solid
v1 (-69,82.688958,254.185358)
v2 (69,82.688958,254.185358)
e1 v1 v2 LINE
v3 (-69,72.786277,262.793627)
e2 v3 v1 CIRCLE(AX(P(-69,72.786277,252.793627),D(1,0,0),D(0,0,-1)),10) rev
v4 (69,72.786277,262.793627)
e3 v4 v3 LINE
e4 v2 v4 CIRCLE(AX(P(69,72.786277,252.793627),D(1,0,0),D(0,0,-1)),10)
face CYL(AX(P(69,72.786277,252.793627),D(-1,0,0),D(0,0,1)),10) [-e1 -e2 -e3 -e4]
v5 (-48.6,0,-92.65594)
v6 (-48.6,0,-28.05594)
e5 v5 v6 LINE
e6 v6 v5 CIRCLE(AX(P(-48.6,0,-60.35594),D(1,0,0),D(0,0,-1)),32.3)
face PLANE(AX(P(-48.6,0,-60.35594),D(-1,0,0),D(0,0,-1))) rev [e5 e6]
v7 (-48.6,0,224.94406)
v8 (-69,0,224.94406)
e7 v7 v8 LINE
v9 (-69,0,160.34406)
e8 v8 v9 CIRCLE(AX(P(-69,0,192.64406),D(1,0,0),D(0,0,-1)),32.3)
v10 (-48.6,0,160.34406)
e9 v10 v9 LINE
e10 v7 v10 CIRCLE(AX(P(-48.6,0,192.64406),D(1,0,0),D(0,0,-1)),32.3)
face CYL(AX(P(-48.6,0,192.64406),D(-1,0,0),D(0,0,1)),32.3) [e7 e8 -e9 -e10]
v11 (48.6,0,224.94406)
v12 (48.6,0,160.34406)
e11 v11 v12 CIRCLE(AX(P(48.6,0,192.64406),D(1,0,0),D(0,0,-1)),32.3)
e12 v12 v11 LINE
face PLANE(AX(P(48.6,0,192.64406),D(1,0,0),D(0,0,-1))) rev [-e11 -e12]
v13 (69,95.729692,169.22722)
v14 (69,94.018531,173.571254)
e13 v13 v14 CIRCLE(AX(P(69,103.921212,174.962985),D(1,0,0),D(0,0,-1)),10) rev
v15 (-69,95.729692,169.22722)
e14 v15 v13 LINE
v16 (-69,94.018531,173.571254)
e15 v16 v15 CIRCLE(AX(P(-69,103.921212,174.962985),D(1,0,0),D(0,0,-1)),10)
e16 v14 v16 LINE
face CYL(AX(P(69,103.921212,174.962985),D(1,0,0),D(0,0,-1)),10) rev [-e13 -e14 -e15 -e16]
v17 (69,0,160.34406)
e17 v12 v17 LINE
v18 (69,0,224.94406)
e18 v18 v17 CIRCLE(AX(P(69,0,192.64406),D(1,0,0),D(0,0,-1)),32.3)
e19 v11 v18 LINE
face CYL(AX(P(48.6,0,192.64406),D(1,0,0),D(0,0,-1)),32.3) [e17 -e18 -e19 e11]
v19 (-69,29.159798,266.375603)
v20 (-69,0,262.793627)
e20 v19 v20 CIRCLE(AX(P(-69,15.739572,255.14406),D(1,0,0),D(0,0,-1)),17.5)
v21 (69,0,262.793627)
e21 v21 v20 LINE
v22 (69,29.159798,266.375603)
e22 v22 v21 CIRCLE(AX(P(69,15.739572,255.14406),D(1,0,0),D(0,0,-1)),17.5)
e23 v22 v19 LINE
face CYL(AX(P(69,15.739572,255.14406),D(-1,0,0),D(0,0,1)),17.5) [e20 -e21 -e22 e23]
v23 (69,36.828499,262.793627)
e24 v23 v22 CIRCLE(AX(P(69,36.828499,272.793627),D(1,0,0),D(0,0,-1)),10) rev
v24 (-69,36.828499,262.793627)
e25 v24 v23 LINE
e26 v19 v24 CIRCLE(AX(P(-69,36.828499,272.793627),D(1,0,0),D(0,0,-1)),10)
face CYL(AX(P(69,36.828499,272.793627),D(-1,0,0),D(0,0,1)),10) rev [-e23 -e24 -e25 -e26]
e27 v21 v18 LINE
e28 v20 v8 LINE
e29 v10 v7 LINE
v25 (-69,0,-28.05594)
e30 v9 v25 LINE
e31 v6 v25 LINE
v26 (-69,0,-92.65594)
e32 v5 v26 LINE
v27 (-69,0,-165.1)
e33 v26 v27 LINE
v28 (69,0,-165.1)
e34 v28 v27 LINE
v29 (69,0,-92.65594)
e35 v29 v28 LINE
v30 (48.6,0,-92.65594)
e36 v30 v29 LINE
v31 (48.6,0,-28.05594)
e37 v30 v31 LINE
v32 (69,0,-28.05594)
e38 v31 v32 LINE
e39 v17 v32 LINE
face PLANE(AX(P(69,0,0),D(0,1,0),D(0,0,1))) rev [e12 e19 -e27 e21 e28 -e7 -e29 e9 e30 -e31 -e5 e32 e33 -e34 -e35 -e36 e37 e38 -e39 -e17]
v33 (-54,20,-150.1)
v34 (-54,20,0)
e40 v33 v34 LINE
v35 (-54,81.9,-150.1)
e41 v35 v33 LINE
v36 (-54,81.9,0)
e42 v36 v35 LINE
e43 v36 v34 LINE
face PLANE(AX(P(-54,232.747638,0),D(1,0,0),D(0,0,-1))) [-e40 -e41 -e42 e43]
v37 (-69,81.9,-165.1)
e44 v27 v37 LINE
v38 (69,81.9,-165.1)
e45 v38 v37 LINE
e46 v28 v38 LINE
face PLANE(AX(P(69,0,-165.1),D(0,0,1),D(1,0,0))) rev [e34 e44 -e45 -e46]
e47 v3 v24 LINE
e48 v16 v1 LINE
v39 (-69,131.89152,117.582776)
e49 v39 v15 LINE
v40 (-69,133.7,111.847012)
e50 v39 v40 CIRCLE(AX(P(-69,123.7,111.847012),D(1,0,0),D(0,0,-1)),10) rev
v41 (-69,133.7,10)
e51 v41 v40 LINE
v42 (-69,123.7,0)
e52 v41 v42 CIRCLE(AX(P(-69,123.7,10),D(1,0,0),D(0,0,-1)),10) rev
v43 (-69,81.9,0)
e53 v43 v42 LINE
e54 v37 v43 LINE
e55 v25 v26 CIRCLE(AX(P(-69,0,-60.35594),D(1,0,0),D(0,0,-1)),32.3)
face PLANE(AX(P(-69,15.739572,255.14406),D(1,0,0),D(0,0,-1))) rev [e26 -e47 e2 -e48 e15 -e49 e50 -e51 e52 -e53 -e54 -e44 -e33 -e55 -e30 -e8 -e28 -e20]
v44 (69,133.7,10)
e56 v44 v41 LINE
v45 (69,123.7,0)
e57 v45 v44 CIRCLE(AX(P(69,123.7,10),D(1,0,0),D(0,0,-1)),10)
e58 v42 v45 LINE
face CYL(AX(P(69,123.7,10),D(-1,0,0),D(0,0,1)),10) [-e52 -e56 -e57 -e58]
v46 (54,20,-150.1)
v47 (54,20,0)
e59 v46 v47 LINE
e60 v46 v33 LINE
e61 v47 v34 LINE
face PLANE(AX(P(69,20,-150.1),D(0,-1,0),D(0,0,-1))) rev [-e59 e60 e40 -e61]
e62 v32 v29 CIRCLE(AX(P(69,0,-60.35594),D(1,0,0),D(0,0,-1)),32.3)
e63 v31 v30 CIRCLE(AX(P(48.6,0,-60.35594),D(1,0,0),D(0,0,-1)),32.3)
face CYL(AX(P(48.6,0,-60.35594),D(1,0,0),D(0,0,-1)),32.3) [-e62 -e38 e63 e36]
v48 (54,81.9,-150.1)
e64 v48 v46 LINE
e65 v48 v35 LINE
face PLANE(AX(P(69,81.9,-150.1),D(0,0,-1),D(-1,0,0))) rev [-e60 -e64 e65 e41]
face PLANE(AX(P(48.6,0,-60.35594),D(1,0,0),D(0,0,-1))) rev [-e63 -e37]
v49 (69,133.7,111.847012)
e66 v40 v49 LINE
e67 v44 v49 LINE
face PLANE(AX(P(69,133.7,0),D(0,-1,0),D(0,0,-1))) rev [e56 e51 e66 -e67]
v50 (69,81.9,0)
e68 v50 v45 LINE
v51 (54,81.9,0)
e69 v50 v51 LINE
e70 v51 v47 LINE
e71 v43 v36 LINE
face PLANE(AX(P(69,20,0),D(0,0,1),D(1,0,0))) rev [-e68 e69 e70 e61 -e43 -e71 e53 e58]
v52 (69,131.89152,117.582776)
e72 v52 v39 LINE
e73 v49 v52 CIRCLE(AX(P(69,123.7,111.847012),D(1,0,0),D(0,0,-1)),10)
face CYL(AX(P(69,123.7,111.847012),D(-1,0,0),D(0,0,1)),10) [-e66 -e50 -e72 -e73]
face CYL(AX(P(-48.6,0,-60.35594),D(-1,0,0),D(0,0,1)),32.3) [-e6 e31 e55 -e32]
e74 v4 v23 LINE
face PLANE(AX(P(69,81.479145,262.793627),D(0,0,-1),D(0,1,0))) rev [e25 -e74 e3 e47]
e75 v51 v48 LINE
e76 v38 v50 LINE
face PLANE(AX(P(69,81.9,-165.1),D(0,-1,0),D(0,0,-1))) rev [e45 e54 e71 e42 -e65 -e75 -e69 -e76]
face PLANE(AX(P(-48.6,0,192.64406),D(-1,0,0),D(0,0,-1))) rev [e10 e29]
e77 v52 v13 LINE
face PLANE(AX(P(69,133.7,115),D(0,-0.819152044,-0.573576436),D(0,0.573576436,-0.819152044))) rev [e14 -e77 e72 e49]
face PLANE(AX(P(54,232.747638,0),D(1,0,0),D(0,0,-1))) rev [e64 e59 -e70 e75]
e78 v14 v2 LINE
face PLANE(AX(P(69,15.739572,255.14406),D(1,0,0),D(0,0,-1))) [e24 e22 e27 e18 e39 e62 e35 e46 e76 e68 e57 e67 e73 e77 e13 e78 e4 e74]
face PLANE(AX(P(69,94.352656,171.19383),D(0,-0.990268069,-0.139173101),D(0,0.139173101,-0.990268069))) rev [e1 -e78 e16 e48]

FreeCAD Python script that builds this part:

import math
import FreeCAD as App
import Part
import Sketcher

V = App.Vector
Q = App.Units.Quantity


def edges_at(feature, points):
    """Names of the edges that pass closest to the given points."""
    edges = feature.Shape.Edges
    near = lambda p: min(range(len(edges)), key=lambda i: edges[i].distToShape(Part.Vertex(*p))[0])
    return sorted({f"Edge{near(p) + 1}" for p in points})

doc = App.newDocument("Part")
body = doc.addObject("PartDesign::Body", "Body")

sketch1 = body.newObject("Sketcher::SketchObject", "Sketch")
sketch1.AttachmentSupport = (doc.getObject("YZ_Plane"), [""])
sketch1.MapMode = "FlatFace"
sketch1.addGeometry([
    Part.LineSegment(V(0, 263, 0), V(0, -165, 0)),
    Part.LineSegment(V(0, -165, 0), V(82, -165, 0)),
    Part.LineSegment(V(82, -165, 0), V(82, -150, 0)),
    Part.LineSegment(V(82, -150, 0), V(20, -150, 0)),
    Part.LineSegment(V(20, -150, 0), V(20, 0, 0)),
    Part.LineSegment(V(20, 0, 0), V(134, 0, 0)),
    Part.LineSegment(V(134, 0, 0), V(134, 115, 0)),
    Part.LineSegment(V(134, 115, 0), V(94, 171, 0)),
    Part.LineSegment(V(94, 171, 0), V(81, 263, 0)),
    Part.LineSegment(V(81, 263, 0), V(31, 263, 0)),
    Part.ArcOfCircle(Part.Circle(V(16, 255, 0), V(0, 0, 1), 18), math.radians(26), math.radians(154)),
], False)
sketch1.addConstraint([
    Sketcher.Constraint("Coincident", 0, 2, 1, 1),
    Sketcher.Constraint("Coincident", 1, 2, 2, 1),
    Sketcher.Constraint("Coincident", 2, 2, 3, 1),
    Sketcher.Constraint("Coincident", 3, 2, 4, 1),
    Sketcher.Constraint("Coincident", 4, 2, 5, 1),
    Sketcher.Constraint("Coincident", 5, 2, 6, 1),
    Sketcher.Constraint("Coincident", 6, 2, 7, 1),
    Sketcher.Constraint("Coincident", 7, 2, 8, 1),
    Sketcher.Constraint("Coincident", 8, 2, 9, 1),
    Sketcher.Constraint("Coincident", 9, 2, 10, 1),
    Sketcher.Constraint("Coincident", 10, 2, 0, 1),
    Sketcher.Constraint("Vertical", 0),
    Sketcher.Constraint("Horizontal", 1),
    Sketcher.Constraint("Vertical", 2),
    Sketcher.Constraint("Horizontal", 3),
    Sketcher.Constraint("Vertical", 4),
    Sketcher.Constraint("Horizontal", 5),
    Sketcher.Constraint("Vertical", 6),
    Sketcher.Constraint("Horizontal", 9),
    Sketcher.Constraint("PointOnObject", 0, 2, -2),
    Sketcher.Constraint("PointOnObject", 4, 2, -1),
    Sketcher.Constraint("Horizontal", 9, 2, 10, 2),
    Sketcher.Constraint("Radius", 10, 17.5),
    Sketcher.Constraint("DistanceX", 9, 2, 9, 1, 50.0),
    Sketcher.Constraint("DistanceY", 2, 1, 2, 2, 15.0),
    Sketcher.Constraint("DistanceY", 6, 1, 6, 2, 115.0),
    Sketcher.Constraint("Angle", 7, Q("125 deg")),
    Sketcher.Constraint("Angle", 8, Q("98 deg")),
    Sketcher.Constraint("DistanceX", 1, 1, 1, 2, 81.9),
    Sketcher.Constraint("DistanceX", 3, 2, 3, 1, 61.9),
    Sketcher.Constraint("DistanceX", 5, 1, 5, 2, 113.7),
    Sketcher.Constraint("DistanceY", 4, 1, 4, 2, 150.1),
    Sketcher.Constraint("Distance", 7, 68.6),
    Sketcher.Constraint("Distance", 8, 92.5),
])
pad1 = body.newObject("PartDesign::Pad", "Pad")
pad1.Profile = sketch1
pad1.Length = 138
pad1.Midplane = True

sketch2 = body.newObject("Sketcher::SketchObject", "Sketch001")
sketch2.AttachmentSupport = (doc.getObject("XZ_Plane"), [""])
sketch2.MapMode = "FlatFace"
sketch2.AttachmentOffset = App.Placement(V(0, 0, -20), App.Rotation())
sketch2.addGeometry([
    Part.LineSegment(V(54, -150, 0), V(54, 0, 0)),
    Part.LineSegment(V(54, 0, 0), V(69, 0, 0)),
    Part.LineSegment(V(69, 0, 0), V(69, -150, 0)),
    Part.LineSegment(V(69, -150, 0), V(54, -150, 0)),
], False)
sketch2.addConstraint([
    Sketcher.Constraint("Coincident", 0, 2, 1, 1),
    Sketcher.Constraint("Coincident", 1, 2, 2, 1),
    Sketcher.Constraint("Coincident", 2, 2, 3, 1),
    Sketcher.Constraint("Coincident", 3, 2, 0, 1),
    Sketcher.Constraint("Vertical", 0),
    Sketcher.Constraint("Horizontal", 1),
    Sketcher.Constraint("Vertical", 2),
    Sketcher.Constraint("Horizontal", 3),
    Sketcher.Constraint("PointOnObject", 0, 2, -1),
    Sketcher.Constraint("DistanceX", 1, 1, 1, 2, 15.0),
    Sketcher.Constraint("DistanceY", 0, 1, 0, 2, 150.1),
    Sketcher.Constraint("DistanceX", -1, 1, 0, 2, 54.0),
])
pad2 = body.newObject("PartDesign::Pad", "Pad001")
pad2.Profile = sketch2
pad2.Length = 61.9
pad2.Reversed = True
doc.recompute()

mirrored = body.newObject("PartDesign::Mirrored", "Mirrored")
mirrored.Originals = [pad2]
mirrored.MirrorPlane = (doc.getObject("YZ_Plane"), [""])
body.Tip = mirrored

sketch3 = body.newObject("Sketcher::SketchObject", "Sketch002")
sketch3.AttachmentSupport = (doc.getObject("YZ_Plane"), [""])
sketch3.MapMode = "FlatFace"
sketch3.AttachmentOffset = App.Placement(V(0, 0, 69), App.Rotation())
sketch3.addGeometry([
    Part.LineSegment(V(0, 160, 0), V(0, 225, 0)),
    Part.ArcOfCircle(Part.Circle(V(0, 193, 0), V(0, 0, 1), 32), math.radians(90), math.radians(270)),
    Part.LineSegment(V(0, -93, 0), V(0, -28, 0)),
    Part.ArcOfCircle(Part.Circle(V(0, -60, 0), V(0, 0, 1), 32), math.radians(90), math.radians(270)),
], False)
sketch3.addConstraint([
    Sketcher.Constraint("Coincident", 0, 1, 1, 2),
    Sketcher.Constraint("Coincident", 1, 1, 0, 2),
    Sketcher.Constraint("Coincident", 2, 1, 3, 2),
    Sketcher.Constraint("Coincident", 3, 1, 2, 2),
    Sketcher.Constraint("Vertical", 0),
    Sketcher.Constraint("Vertical", 2),
    Sketcher.Constraint("Equal", 1, 3),
    Sketcher.Constraint("PointOnObject", 1, 3, -2),
    Sketcher.Constraint("PointOnObject", 3, 3, -2),
    Sketcher.Constraint("PointOnObject", 0, 1, -2),
    Sketcher.Constraint("PointOnObject", 2, 1, -2),
    Sketcher.Constraint("Radius", 1, 32.3),
    Sketcher.Constraint("DistanceY", 3, 3, 1, 3, 253.0),
    Sketcher.Constraint("DistanceY", -1, 1, 1, 3, 192.64406),
])
pad3 = body.newObject("PartDesign::Pad", "Pad002")
pad3.Profile = sketch3
pad3.Length = 20.4
pad3.Reversed = True
doc.recompute()

mirrored2 = body.newObject("PartDesign::Mirrored", "Mirrored001")
mirrored2.Originals = [pad3]
mirrored2.MirrorPlane = (doc.getObject("YZ_Plane"), [""])
body.Tip = mirrored2
doc.recompute()

fillet = body.newObject("PartDesign::Fillet", "Fillet")
fillet.Base = (mirrored2, edges_at(mirrored2, [
    (0, 31.479, 262.794),
    (0, 81.479, 262.794),
    (0, 94.353, 171.194),
    (0, 133.7, 115),
    (0, 133.7, 0),
]))
fillet.Radius = 10

doc.recompute()
